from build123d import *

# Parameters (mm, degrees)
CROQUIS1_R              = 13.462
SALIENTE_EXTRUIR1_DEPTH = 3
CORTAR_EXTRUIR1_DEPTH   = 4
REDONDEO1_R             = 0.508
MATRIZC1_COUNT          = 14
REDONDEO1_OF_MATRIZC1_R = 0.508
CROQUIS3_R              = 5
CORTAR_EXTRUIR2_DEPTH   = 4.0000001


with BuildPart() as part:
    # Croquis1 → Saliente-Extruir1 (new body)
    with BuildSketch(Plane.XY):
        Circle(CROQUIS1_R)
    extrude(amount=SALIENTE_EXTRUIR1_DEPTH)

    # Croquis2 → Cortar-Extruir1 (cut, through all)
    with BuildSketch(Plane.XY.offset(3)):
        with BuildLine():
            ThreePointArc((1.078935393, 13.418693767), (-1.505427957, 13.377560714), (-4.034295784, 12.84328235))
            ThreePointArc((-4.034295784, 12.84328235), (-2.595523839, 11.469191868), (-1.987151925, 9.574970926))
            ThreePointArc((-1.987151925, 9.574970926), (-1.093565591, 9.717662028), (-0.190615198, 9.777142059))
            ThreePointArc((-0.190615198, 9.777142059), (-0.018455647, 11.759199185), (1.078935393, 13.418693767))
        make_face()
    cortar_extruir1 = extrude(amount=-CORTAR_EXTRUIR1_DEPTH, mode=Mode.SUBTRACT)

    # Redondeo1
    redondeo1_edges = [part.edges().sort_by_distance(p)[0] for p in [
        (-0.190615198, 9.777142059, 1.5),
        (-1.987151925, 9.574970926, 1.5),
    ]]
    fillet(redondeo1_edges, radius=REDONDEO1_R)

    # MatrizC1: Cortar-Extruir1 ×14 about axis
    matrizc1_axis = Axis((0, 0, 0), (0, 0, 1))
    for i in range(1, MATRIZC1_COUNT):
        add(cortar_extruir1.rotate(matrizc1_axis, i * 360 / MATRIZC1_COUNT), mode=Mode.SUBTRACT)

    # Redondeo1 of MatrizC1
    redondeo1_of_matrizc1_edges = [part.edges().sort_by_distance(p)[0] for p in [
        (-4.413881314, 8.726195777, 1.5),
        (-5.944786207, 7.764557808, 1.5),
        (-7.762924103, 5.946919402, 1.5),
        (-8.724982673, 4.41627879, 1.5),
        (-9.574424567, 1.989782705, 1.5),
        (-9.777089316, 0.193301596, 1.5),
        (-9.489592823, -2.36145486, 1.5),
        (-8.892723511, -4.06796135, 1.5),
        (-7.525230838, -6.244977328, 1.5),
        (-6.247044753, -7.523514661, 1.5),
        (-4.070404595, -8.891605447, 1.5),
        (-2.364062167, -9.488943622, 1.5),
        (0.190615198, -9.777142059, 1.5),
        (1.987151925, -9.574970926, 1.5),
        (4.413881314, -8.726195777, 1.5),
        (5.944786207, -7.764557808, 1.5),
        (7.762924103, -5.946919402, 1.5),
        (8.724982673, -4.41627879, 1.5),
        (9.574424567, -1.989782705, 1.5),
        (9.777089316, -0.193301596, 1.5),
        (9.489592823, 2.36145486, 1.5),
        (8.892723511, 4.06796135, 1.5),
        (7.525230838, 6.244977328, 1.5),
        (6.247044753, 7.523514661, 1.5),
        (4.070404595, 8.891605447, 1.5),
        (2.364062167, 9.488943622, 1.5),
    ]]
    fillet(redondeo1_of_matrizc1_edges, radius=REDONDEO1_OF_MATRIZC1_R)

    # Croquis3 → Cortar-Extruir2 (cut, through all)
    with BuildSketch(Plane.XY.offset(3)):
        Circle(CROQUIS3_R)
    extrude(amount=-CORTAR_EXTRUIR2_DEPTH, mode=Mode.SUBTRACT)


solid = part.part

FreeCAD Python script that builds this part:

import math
import FreeCAD as App
import Part
import Sketcher
from FreeCAD import Vector


def edges_at(feature, points):
    """Names of the edges that pass closest to the given points."""
    edges = feature.Shape.Edges
    near = lambda p: min(range(len(edges)), key=lambda i: edges[i].distToShape(Part.Vertex(*p))[0])
    return sorted({f"Edge{near(p) + 1}" for p in points})

doc = App.newDocument("Part")
body = doc.addObject("PartDesign::Body", "Body")

sketch1 = doc.addObject("Sketcher::SketchObject", "Sketch")
body.addObject(sketch1)
sketch1.AttachmentSupport = (doc.XY_Plane, [""])
sketch1.MapMode = "FlatFace"
sketch1.addGeometry(Part.Circle(Vector(0, 0, 0), Vector(0, 0, 1), 13), False)
sketch1.addConstraint(Sketcher.Constraint("Coincident", 0, 3, -1, 1))
sketch1.addConstraint(Sketcher.Constraint("Diameter", 0, 26.924))
pad1 = doc.addObject("PartDesign::Pad", "Pad")
body.addObject(pad1)
pad1.Profile = sketch1
pad1.Length = 3

sketch2 = doc.addObject("Sketcher::SketchObject", "Sketch001")
body.addObject(sketch2)
sketch2.AttachmentSupport = (doc.XY_Plane, [""])
sketch2.MapMode = "FlatFace"
sketch2.AttachmentOffset = App.Placement(Vector(0, 0, 3), App.Rotation())
sketch2.addGeometry(Part.ArcOfCircle(Part.Circle(Vector(0, 0, 0), Vector(0, 0, 1), 13.5), math.radians(85), math.radians(107)), False)
sketch2.addGeometry(Part.ArcOfCircle(Part.Circle(Vector(-6, 9.3, 0), Vector(0, 0, 1), 4), math.radians(4), math.radians(61)), False)
sketch2.addGeometry(Part.ArcOfCircle(Part.Circle(Vector(0, 0, 0), Vector(0, 0, 1), 9.8), math.radians(91.12), math.radians(101.72)), False)
sketch2.addGeometry(Part.ArcOfCircle(Part.Circle(Vector(3.8, 10.4, 0), Vector(0, 0, 1), 4), math.radians(132), math.radians(189)), False)
sketch2.addConstraint(Sketcher.Constraint("Coincident", 0, 2, 1, 2))
sketch2.addConstraint(Sketcher.Constraint("Coincident", 1, 1, 2, 2))
sketch2.addConstraint(Sketcher.Constraint("Coincident", 2, 1, 3, 2))
sketch2.addConstraint(Sketcher.Constraint("Coincident", 3, 1, 0, 1))
sketch2.addConstraint(Sketcher.Constraint("Coincident", 0, 3, -1, 1))
sketch2.addConstraint(Sketcher.Constraint("Coincident", 2, 3, -1, 1))
sketch2.addConstraint(Sketcher.Constraint("Equal", 1, 3))
sketch2.addConstraint(Sketcher.Constraint("Radius", 0, 13.462))
sketch2.addConstraint(Sketcher.Constraint("Radius", 2, 9.779))
sketch2.addConstraint(Sketcher.Constraint("Radius", 1, 4.0396))
sketch2.addConstraint(Sketcher.Constraint("DistanceX", 1, 3, -1, 1, 6.019001))
sketch2.addConstraint(Sketcher.Constraint("DistanceX", 1, 1, -1, 1, 1.987152))
sketch2.addConstraint(Sketcher.Constraint("DistanceX", 0, 2, 3, 3, 7.830278))
sketch2.addConstraint(Sketcher.Constraint("DistanceX", 0, 2, 2, 1, 3.843681))
pocket1 = doc.addObject("PartDesign::Pocket", "Pocket")
body.addObject(pocket1)
pocket1.Profile = sketch2
pocket1.Type = "ThroughAll"
doc.recompute()

fillet = doc.addObject("PartDesign::Fillet", "Fillet")
body.addObject(fillet)
fillet.Base = (pocket1, edges_at(pocket1, [(-0.191, 9.777, 1.5), (-1.987, 9.575, 1.5)]))
fillet.Radius = 0.508
doc.recompute()

polarpattern = doc.addObject("PartDesign::PolarPattern", "PolarPattern")
body.addObject(polarpattern)
polarpattern.Originals = [pocket1]
polarpattern.Axis = (doc.Z_Axis, [""])
polarpattern.Angle = 360
polarpattern.Occurrences = 14
body.Tip = polarpattern
doc.recompute()

fillet2 = doc.addObject("PartDesign::Fillet", "Fillet001")
body.addObject(fillet2)
fillet2.Base = (polarpattern, edges_at(polarpattern, [
    (-4.414, 8.726, 1.5),
    (-5.945, 7.765, 1.5),
    (-7.763, 5.947, 1.5),
    (-8.725, 4.416, 1.5),
    (-9.574, 1.99, 1.5),
    (-9.777, 0.193, 1.5),
    (-9.49, -2.361, 1.5),
    (-8.893, -4.068, 1.5),
    (-7.525, -6.245, 1.5),
    (-6.247, -7.524, 1.5),
    (-4.07, -8.892, 1.5),
    (-2.364, -9.489, 1.5),
    (0.191, -9.777, 1.5),
    (1.987, -9.575, 1.5),
    (4.414, -8.726, 1.5),
    (5.945, -7.765, 1.5),
    (7.763, -5.947, 1.5),
    (8.725, -4.416, 1.5),
    (9.574, -1.99, 1.5),
    (9.777, -0.193, 1.5),
    (9.49, 2.361, 1.5),
    (8.893, 4.068, 1.5),
    (7.525, 6.245, 1.5),
    (6.247, 7.524, 1.5),
    (4.07, 8.892, 1.5),
    (2.364, 9.489, 1.5),
]))
fillet2.Radius = 0.508

sketch3 = doc.addObject("Sketcher::SketchObject", "Sketch002")
body.addObject(sketch3)
sketch3.AttachmentSupport = (doc.XY_Plane, [""])
sketch3.MapMode = "FlatFace"
sketch3.AttachmentOffset = App.Placement(Vector(0, 0, 3), App.Rotation())
sketch3.addGeometry(Part.Circle(Vector(0, 0, 0), Vector(0, 0, 1), 5), False)
sketch3.addConstraint(Sketcher.Constraint("Coincident", 0, 3, -1, 1))
sketch3.addConstraint(Sketcher.Constraint("Diameter", 0, 10.0))
pocket2 = doc.addObject("PartDesign::Pocket", "Pocket001")
body.addObject(pocket2)
pocket2.Profile = sketch3
pocket2.Type = "ThroughAll"

doc.recompute()
